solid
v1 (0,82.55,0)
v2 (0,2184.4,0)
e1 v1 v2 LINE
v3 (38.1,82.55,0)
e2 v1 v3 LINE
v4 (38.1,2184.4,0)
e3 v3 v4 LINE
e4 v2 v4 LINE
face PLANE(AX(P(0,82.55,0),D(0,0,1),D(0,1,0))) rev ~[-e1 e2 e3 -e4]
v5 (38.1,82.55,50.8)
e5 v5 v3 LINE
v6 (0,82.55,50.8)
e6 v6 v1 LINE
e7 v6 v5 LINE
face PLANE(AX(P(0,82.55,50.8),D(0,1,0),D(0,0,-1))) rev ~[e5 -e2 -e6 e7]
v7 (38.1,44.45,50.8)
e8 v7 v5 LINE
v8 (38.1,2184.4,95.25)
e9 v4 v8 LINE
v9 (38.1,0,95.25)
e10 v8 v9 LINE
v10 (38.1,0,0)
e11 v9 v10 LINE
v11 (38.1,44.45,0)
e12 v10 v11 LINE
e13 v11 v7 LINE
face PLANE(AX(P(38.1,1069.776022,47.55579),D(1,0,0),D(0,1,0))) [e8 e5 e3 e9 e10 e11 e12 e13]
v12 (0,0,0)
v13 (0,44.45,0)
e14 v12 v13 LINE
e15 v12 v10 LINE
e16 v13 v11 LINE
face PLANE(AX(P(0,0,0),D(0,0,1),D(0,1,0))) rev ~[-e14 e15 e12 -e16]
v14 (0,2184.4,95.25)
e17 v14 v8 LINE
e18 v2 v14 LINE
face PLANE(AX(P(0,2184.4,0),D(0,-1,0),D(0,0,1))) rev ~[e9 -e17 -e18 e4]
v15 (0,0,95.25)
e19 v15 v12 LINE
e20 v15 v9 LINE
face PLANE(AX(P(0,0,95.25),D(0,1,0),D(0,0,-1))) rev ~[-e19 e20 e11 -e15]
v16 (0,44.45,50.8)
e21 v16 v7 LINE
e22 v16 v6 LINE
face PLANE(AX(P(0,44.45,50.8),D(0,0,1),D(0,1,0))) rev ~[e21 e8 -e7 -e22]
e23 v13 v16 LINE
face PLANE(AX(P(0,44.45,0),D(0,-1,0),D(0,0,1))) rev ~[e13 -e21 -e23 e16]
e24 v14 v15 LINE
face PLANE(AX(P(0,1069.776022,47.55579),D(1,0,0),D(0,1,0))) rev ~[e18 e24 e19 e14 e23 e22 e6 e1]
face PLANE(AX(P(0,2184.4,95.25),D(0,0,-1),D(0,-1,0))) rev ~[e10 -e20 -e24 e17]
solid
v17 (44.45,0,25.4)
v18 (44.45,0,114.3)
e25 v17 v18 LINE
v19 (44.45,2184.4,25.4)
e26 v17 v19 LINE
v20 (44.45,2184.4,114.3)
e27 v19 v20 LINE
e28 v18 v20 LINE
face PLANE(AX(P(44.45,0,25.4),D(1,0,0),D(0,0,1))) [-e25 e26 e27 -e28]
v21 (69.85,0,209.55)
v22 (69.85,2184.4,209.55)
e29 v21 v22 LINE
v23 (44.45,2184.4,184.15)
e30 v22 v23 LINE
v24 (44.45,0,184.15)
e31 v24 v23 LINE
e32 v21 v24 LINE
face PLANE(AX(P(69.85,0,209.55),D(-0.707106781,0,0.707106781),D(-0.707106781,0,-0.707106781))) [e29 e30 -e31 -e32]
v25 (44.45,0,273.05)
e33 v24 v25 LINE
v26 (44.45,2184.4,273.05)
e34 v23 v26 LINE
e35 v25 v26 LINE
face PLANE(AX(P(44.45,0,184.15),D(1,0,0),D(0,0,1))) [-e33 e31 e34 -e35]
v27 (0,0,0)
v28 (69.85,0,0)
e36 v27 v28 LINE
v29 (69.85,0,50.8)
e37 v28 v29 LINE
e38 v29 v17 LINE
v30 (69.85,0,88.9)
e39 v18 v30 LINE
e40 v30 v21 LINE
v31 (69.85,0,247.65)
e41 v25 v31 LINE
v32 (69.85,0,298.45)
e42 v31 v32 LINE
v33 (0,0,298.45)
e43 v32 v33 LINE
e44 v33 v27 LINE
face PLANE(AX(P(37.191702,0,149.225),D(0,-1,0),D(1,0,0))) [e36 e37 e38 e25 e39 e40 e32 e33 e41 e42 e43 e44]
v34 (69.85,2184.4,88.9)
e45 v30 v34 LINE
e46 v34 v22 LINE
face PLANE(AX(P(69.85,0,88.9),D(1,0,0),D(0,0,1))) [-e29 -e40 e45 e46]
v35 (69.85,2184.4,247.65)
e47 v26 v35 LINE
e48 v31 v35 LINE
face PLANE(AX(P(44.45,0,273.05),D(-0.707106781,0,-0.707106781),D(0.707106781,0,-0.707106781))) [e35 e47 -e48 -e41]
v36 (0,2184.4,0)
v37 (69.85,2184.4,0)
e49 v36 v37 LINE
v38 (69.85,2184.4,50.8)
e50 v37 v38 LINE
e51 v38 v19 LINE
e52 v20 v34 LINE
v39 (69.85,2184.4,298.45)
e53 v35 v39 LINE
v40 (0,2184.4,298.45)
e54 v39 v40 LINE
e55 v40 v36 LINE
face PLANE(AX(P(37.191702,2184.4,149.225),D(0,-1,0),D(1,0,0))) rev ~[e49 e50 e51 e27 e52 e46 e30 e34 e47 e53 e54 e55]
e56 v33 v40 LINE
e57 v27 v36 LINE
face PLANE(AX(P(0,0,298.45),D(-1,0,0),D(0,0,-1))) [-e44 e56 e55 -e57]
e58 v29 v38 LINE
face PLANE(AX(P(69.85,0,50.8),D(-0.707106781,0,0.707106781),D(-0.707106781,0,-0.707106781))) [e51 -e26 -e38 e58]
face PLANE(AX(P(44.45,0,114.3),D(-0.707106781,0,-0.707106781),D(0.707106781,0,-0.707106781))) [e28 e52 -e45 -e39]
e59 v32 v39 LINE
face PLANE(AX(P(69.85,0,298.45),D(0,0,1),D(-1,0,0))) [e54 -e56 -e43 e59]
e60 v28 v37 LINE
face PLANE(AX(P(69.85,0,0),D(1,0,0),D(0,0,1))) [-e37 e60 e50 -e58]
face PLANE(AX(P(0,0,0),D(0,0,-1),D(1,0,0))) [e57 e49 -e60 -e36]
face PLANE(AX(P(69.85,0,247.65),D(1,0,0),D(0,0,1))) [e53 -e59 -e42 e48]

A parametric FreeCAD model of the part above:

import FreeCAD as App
import Part
import Sketcher
Q = App.Units.Quantity


def add_polygon(sketch, points):
    """Adds a closed chain of lines whose ends are joined by coincident constraints."""
    first, n = sketch.GeometryCount, len(points)
    for a, b in zip(points, points[1:] + points[:1]):
        sketch.addGeometry(Part.LineSegment(App.Vector(*a, 0), App.Vector(*b, 0)), False)
    for i in range(n):
        sketch.addConstraint(Sketcher.Constraint("Coincident", first + i, 2, first + (i + 1) % n, 1))

doc = App.newDocument("Part")
params = doc.addObject("Spreadsheet::Sheet", "Params")
for row, (alias, value) in enumerate([
    ("sketch1_width", "86 in"),
    ("sketch1_height", "2 in"),
    ("sketch1_width2", "1.5 in"),
    ("sketch1_width3", "1.75 in"),
    ("sketch1_height2", "3.75 in"),
    ("pad1_length", "1.5 in"),
    ("sketch2_height", "2 in"),
    ("sketch2_height2", "3.5 in"),
    ("sketch2_width", "2.75 in"),
    ("sketch2_height3", "11.75 in"),
    ("pad2_length", "86 in"),
], start=1):
    params.set(f"A{row}", alias)
    params.set(f"B{row}", "=" + value)
    params.setAlias(f"B{row}", alias)

body = doc.addObject("PartDesign::Body", "Body")

# Sketch on YZ plane
sketch1 = body.newObject("Sketcher::SketchObject", "Sketch")
sketch1.AttachmentSupport = (doc.getObject("YZ_Plane"), [""])
sketch1.MapMode = "FlatFace"
add_polygon(sketch1, [(0, 95), (0, 0), (44, 0), (44, 51), (83, 51), (83, 0), (2184, 0), (2184, 95)])  # lines 0-7
sketch1.addConstraint(Sketcher.Constraint("Vertical", 0))
sketch1.addConstraint(Sketcher.Constraint("Horizontal", 1))
sketch1.addConstraint(Sketcher.Constraint("Vertical", 2))
sketch1.addConstraint(Sketcher.Constraint("Horizontal", 3))
sketch1.addConstraint(Sketcher.Constraint("Vertical", 4))
sketch1.addConstraint(Sketcher.Constraint("Horizontal", 5))
sketch1.addConstraint(Sketcher.Constraint("Vertical", 6))
sketch1.addConstraint(Sketcher.Constraint("Horizontal", 7))
sketch1.addConstraint(Sketcher.Constraint("Coincident", 0, 2, -1, 1))
sketch1.addConstraint(Sketcher.Constraint("PointOnObject", 4, 2, -1))
sketch1.addConstraint(Sketcher.Constraint("DistanceX", 7, 2, 7, 1, Q("86 in")))
sketch1.addConstraint(Sketcher.Constraint("DistanceY", 2, 1, 2, 2, Q("2 in")))
sketch1.addConstraint(Sketcher.Constraint("DistanceX", 3, 1, 3, 2, Q("1.5 in")))
sketch1.addConstraint(Sketcher.Constraint("DistanceX", 1, 1, 1, 2, Q("1.75 in")))
sketch1.addConstraint(Sketcher.Constraint("DistanceY", 0, 2, 0, 1, Q("3.75 in")))
sketch1.setExpression("Constraints[18]", "Params.sketch1_width")
sketch1.setExpression("Constraints[19]", "Params.sketch1_height")
sketch1.setExpression("Constraints[20]", "Params.sketch1_width2")
sketch1.setExpression("Constraints[21]", "Params.sketch1_width3")
sketch1.setExpression("Constraints[22]", "Params.sketch1_height2")
pad1 = body.newObject("PartDesign::Pad", "Pad")
pad1.Profile = sketch1
pad1.setExpression("Length", "Params.pad1_length")
body2 = doc.addObject("PartDesign::Body", "Body001")

# Sketch on XZ plane
sketch2 = body2.newObject("Sketcher::SketchObject", "Sketch001")
sketch2.AttachmentSupport = (doc.getObject("XZ_Plane001"), [""])
sketch2.MapMode = "FlatFace"
add_polygon(sketch2, [(0, 298), (0, 0), (70, 0), (70, 51), (44, 25), (44, 114), (70, 89), (70, 210), (44, 184), (44, 273), (70, 248), (70, 298)])  # lines 0-11
sketch2.addConstraint(Sketcher.Constraint("Vertical", 0))
sketch2.addConstraint(Sketcher.Constraint("Horizontal", 1))
sketch2.addConstraint(Sketcher.Constraint("Vertical", 2))
sketch2.addConstraint(Sketcher.Constraint("Vertical", 4))
sketch2.addConstraint(Sketcher.Constraint("Vertical", 6))
sketch2.addConstraint(Sketcher.Constraint("Vertical", 8))
sketch2.addConstraint(Sketcher.Constraint("Vertical", 10))
sketch2.addConstraint(Sketcher.Constraint("Horizontal", 11))
sketch2.addConstraint(Sketcher.Constraint("Coincident", 0, 2, -1, 1))
sketch2.addConstraint(Sketcher.Constraint("Perpendicular", 3, 5))
sketch2.addConstraint(Sketcher.Constraint("Perpendicular", 5, 7))
sketch2.addConstraint(Sketcher.Constraint("Perpendicular", 7, 9))
sketch2.addConstraint(Sketcher.Constraint("Vertical", 2, 2, 5, 2))
sketch2.addConstraint(Sketcher.Constraint("Vertical", 4, 2, 7, 2))
sketch2.addConstraint(Sketcher.Constraint("Vertical", 6, 2, 9, 2))
sketch2.addConstraint(Sketcher.Constraint("Equal", 4, 8))
sketch2.addConstraint(Sketcher.Constraint("Equal", 2, 10))
sketch2.addConstraint(Sketcher.Constraint("Equal", 3, 5))
sketch2.addConstraint(Sketcher.Constraint("DistanceY", 2, 1, 2, 2, Q("2 in")))
sketch2.addConstraint(Sketcher.Constraint("DistanceY", 4, 1, 4, 2, Q("3.5 in")))
sketch2.addConstraint(Sketcher.Constraint("DistanceY", -1, 1, 3, 2, Q("1 in")))
sketch2.addConstraint(Sketcher.Constraint("DistanceX", 1, 1, 1, 2, Q("2.75 in")))
sketch2.addConstraint(Sketcher.Constraint("DistanceY", 0, 2, 0, 1, Q("11.75 in")))
sketch2.setExpression("Constraints[30]", "Params.sketch2_height")
sketch2.setExpression("Constraints[31]", "Params.sketch2_height2")
sketch2.setExpression("Constraints[33]", "Params.sketch2_width")
sketch2.setExpression("Constraints[34]", "Params.sketch2_height3")
pad2 = body2.newObject("PartDesign::Pad", "Pad001")
pad2.Profile = sketch2
pad2.setExpression("Length", "Params.pad2_length")
pad2.Reversed = True

doc.recompute()
